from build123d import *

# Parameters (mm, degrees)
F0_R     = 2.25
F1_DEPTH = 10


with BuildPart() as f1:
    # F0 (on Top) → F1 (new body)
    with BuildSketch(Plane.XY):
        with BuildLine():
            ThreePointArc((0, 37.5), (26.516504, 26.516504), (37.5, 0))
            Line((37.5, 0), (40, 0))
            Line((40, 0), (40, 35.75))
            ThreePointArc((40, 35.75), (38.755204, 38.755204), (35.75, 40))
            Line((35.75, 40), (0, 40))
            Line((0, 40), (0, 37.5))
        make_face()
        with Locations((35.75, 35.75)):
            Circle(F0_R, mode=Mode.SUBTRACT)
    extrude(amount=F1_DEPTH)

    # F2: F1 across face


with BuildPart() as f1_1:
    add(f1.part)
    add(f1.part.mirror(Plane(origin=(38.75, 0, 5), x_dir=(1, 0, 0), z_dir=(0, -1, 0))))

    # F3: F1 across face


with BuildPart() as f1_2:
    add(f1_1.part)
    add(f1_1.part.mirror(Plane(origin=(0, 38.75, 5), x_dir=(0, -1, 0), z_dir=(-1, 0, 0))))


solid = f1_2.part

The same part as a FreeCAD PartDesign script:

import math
import FreeCAD as App
import Part
import Sketcher

doc = App.newDocument("Part")
body = doc.addObject("PartDesign::Body", "Body")

sketch1 = body.newObject("Sketcher::SketchObject", "Sketch")
sketch1.AttachmentSupport = (doc.getObject("XY_Plane"), [""])
sketch1.MapMode = "FlatFace"
sketch1.addGeometry([
    Part.ArcOfCircle(Part.Circle(App.Vector(-0.000001, -0.000001, 0), App.Vector(0, 0, 1), 37.500001), math.radians(0.000002), math.radians(89.999998)),
    Part.LineSegment(App.Vector(37.5, 0, 0), App.Vector(40, 0, 0)),
    Part.LineSegment(App.Vector(40, 0, 0), App.Vector(40, 35.75, 0)),
    Part.ArcOfCircle(Part.Circle(App.Vector(35.750001, 35.750001, 0), App.Vector(0, 0, 1), 4.249999), math.radians(-0.000008), math.radians(90.000008)),
    Part.LineSegment(App.Vector(35.75, 40, 0), App.Vector(0, 40, 0)),
    Part.LineSegment(App.Vector(0, 40, 0), App.Vector(0, 37.5, 0)),
    Part.Circle(App.Vector(35.75, 35.75, 0), App.Vector(0, 0, 1), 2.25),
], False)
sketch1.addConstraint([
    Sketcher.Constraint("Coincident", 0, 1, 1, 1),
    Sketcher.Constraint("Coincident", 1, 2, 2, 1),
    Sketcher.Constraint("Tangent", 2, 2, 3, 1),
    Sketcher.Constraint("Tangent", 3, 2, 4, 1),
    Sketcher.Constraint("Coincident", 4, 2, 5, 1),
    Sketcher.Constraint("Coincident", 5, 2, 0, 2),
    Sketcher.Constraint("Horizontal", 1),
    Sketcher.Constraint("Vertical", 2),
    Sketcher.Constraint("Horizontal", 4),
    Sketcher.Constraint("Vertical", 5),
    Sketcher.Constraint("Coincident", 0, 3, -1, 1),
    Sketcher.Constraint("Coincident", 6, 3, 3, 3),
    Sketcher.Constraint("PointOnObject", 0, 1, -1),
    Sketcher.Constraint("PointOnObject", 4, 2, -2),
    Sketcher.Constraint("Equal", 4, 2),
    Sketcher.Constraint("Diameter", 6, 4.5),
    Sketcher.Constraint("Radius", 0, 37.500001),
    Sketcher.Constraint("Radius", 3, 4.249999),
    Sketcher.Constraint("DistanceX", 1, 1, 1, 2, 2.5),
])
pad1 = body.newObject("PartDesign::Pad", "Pad")
pad1.Profile = sketch1
pad1.Length = 10
body2 = doc.addObject("PartDesign::Body", "Body001")
doc.recompute()

body2.BaseFeature = body
doc.recompute()

mirroring = doc.addObject("Part::Mirroring", "Mirroring")
mirroring.Source = body
mirroring.Base = App.Vector(38.75, 0, 5)
mirroring.Normal = App.Vector(0, -1, 0)
body3 = doc.addObject("PartDesign::Body", "Body002")
body3.BaseFeature = mirroring
boolean = body2.newObject("PartDesign::Boolean", "Boolean")
boolean.Type = "Fuse"
boolean.addObjects([body3])
doc.recompute()
body4 = doc.addObject("PartDesign::Body", "Body003")
doc.recompute()

body4.BaseFeature = body2
doc.recompute()

mirroring2 = doc.addObject("Part::Mirroring", "Mirroring001")
mirroring2.Source = body2
mirroring2.Base = App.Vector(0, 38.75, 5)
mirroring2.Normal = App.Vector(-1, 0, 0)
body5 = doc.addObject("PartDesign::Body", "Body004")
body5.BaseFeature = mirroring2
boolean2 = body4.newObject("PartDesign::Boolean", "Boolean001")
boolean2.Type = "Fuse"
boolean2.addObjects([body5])
doc.recompute()
mirroring.Visibility = False
mirroring2.Visibility = False

doc.recompute()
